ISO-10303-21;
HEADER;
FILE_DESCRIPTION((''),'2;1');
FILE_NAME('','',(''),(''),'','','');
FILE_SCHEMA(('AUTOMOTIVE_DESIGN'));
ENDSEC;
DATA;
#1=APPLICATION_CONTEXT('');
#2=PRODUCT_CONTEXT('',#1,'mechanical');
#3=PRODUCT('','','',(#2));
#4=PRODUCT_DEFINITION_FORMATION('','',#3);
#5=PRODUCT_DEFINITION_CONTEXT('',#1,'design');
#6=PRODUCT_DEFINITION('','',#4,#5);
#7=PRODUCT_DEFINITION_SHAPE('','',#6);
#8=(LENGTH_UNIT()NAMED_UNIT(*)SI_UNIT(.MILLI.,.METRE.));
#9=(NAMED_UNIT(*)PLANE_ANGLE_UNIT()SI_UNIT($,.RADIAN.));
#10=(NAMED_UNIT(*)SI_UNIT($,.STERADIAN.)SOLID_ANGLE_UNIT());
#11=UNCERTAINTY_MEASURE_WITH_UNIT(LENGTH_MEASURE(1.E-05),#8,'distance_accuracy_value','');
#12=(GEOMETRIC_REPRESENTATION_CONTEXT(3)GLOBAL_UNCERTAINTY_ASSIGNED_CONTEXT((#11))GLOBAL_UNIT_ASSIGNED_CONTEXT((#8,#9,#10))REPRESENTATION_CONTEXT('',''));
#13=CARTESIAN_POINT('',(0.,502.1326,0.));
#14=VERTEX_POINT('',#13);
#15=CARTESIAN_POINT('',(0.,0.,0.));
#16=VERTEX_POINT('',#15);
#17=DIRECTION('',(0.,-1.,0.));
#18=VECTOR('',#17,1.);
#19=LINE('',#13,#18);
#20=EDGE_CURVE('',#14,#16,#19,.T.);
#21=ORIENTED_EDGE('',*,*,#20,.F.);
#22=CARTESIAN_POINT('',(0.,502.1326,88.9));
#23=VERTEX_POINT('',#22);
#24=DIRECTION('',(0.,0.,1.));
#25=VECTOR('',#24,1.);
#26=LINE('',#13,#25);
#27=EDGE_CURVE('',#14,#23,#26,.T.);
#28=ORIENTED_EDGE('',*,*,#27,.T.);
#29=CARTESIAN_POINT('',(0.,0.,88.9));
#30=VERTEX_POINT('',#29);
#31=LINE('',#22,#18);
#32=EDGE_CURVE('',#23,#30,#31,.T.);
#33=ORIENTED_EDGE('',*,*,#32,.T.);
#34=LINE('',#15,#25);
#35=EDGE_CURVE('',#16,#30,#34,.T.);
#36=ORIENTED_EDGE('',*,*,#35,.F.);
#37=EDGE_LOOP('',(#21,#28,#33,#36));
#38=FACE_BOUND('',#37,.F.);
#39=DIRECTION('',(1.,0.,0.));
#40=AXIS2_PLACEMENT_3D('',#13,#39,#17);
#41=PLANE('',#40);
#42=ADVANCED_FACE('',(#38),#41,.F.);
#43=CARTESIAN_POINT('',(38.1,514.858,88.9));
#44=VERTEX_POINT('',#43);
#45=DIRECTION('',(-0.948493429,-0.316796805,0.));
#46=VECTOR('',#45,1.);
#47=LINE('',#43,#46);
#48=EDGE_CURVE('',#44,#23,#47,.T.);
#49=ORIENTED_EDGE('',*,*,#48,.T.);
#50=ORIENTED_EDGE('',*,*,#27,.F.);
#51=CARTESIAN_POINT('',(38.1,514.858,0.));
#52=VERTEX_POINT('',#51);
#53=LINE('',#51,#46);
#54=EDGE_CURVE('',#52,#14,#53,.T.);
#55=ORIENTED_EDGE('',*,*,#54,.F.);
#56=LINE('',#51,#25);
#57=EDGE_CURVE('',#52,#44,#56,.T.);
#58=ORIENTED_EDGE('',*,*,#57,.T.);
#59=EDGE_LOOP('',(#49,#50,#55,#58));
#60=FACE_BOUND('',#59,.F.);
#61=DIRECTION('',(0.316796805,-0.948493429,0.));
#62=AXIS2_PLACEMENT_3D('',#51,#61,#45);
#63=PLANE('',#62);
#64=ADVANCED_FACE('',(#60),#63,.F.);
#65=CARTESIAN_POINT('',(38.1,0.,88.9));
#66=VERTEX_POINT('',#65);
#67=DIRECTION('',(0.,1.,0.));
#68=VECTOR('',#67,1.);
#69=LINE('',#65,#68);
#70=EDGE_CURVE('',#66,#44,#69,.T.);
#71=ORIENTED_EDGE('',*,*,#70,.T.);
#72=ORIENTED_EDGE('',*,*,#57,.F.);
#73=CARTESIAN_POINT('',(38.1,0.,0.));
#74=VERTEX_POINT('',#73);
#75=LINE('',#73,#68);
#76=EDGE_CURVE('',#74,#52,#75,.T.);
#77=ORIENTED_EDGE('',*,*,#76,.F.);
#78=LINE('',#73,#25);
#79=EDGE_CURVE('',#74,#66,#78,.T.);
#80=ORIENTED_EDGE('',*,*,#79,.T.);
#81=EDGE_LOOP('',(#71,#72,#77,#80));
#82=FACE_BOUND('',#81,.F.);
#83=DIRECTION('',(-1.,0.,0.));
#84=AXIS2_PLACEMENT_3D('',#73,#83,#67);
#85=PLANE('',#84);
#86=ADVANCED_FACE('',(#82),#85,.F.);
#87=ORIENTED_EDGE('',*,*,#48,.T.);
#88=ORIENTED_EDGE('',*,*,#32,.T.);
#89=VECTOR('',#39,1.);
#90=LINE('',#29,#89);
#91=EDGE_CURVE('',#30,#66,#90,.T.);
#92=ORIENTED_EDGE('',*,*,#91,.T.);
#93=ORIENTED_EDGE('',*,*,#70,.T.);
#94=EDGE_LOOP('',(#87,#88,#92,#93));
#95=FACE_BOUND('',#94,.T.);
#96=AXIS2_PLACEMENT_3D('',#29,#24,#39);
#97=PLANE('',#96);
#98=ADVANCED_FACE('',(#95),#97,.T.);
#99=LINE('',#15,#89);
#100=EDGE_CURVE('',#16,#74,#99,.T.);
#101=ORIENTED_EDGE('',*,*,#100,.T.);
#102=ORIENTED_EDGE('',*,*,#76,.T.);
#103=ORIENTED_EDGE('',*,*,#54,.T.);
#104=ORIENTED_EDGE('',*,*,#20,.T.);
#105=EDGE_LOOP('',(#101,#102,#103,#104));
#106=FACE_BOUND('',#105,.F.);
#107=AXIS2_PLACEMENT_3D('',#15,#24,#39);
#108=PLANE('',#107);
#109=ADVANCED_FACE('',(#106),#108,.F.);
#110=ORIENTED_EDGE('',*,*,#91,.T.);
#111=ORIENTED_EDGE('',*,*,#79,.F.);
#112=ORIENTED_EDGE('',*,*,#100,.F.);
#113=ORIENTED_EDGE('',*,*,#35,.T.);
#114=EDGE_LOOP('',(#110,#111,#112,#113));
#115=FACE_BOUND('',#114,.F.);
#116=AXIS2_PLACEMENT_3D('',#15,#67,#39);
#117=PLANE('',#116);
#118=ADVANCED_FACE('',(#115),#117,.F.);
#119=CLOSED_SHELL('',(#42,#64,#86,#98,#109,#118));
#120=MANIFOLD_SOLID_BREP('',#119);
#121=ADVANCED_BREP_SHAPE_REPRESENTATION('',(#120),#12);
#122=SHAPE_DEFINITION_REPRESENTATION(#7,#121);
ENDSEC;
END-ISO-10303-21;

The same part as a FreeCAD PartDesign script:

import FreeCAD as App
import Part
import Sketcher
from FreeCAD import Vector
Q = App.Units.Quantity

doc = App.newDocument("Part")
params = doc.addObject("Spreadsheet::Sheet", "Params")
for row, (alias, value) in enumerate([
    ("sketch1_width", "1.5 in"),
    ("sketch1_height", "20.27 in"),
    ("sketch1_height2", "19.769 in"),
    ("pad1_length", "3.5 in"),
], start=1):
    params.set(f"A{row}", alias)
    params.set(f"B{row}", "=" + value)
    params.setAlias(f"B{row}", alias)

body = doc.addObject("PartDesign::Body", "Body")

# Sketch on XY plane
sketch1 = body.newObject("Sketcher::SketchObject", "Sketch")
sketch1.AttachmentSupport = (doc.getObject("XY_Plane"), [""])
sketch1.MapMode = "FlatFace"
sketch1.addGeometry(Part.LineSegment(Vector(0, 502.1326, 0), Vector(0, 0, 0)), False)
sketch1.addGeometry(Part.LineSegment(Vector(0, 0, 0), Vector(38.1, 0, 0)), False)
sketch1.addGeometry(Part.LineSegment(Vector(38.1, 0, 0), Vector(38.1, 514.858, 0)), False)
sketch1.addGeometry(Part.LineSegment(Vector(38.1, 514.858, 0), Vector(0, 502.1326, 0)), False)
sketch1.addConstraint(Sketcher.Constraint("Coincident", 0, 2, 1, 1))
sketch1.addConstraint(Sketcher.Constraint("Coincident", 1, 2, 2, 1))
sketch1.addConstraint(Sketcher.Constraint("Coincident", 2, 2, 3, 1))
sketch1.addConstraint(Sketcher.Constraint("Coincident", 3, 2, 0, 1))
sketch1.addConstraint(Sketcher.Constraint("Vertical", 0))
sketch1.addConstraint(Sketcher.Constraint("Horizontal", 1))
sketch1.addConstraint(Sketcher.Constraint("Vertical", 2))
sketch1.addConstraint(Sketcher.Constraint("Coincident", 0, 2, -1, 1))
sketch1.addConstraint(Sketcher.Constraint("DistanceX", 1, 1, 1, 2, Q("1.5 in")))
sketch1.addConstraint(Sketcher.Constraint("DistanceY", 2, 1, 2, 2, Q("20.27 in")))
sketch1.addConstraint(Sketcher.Constraint("DistanceY", 0, 2, 0, 1, Q("19.769 in")))
sketch1.setExpression("Constraints[8]", "Params.sketch1_width")
sketch1.setExpression("Constraints[9]", "Params.sketch1_height")
sketch1.setExpression("Constraints[10]", "Params.sketch1_height2")
pad1 = body.newObject("PartDesign::Pad", "Pad")
pad1.Profile = sketch1
pad1.setExpression("Length", "Params.pad1_length")

doc.recompute()
